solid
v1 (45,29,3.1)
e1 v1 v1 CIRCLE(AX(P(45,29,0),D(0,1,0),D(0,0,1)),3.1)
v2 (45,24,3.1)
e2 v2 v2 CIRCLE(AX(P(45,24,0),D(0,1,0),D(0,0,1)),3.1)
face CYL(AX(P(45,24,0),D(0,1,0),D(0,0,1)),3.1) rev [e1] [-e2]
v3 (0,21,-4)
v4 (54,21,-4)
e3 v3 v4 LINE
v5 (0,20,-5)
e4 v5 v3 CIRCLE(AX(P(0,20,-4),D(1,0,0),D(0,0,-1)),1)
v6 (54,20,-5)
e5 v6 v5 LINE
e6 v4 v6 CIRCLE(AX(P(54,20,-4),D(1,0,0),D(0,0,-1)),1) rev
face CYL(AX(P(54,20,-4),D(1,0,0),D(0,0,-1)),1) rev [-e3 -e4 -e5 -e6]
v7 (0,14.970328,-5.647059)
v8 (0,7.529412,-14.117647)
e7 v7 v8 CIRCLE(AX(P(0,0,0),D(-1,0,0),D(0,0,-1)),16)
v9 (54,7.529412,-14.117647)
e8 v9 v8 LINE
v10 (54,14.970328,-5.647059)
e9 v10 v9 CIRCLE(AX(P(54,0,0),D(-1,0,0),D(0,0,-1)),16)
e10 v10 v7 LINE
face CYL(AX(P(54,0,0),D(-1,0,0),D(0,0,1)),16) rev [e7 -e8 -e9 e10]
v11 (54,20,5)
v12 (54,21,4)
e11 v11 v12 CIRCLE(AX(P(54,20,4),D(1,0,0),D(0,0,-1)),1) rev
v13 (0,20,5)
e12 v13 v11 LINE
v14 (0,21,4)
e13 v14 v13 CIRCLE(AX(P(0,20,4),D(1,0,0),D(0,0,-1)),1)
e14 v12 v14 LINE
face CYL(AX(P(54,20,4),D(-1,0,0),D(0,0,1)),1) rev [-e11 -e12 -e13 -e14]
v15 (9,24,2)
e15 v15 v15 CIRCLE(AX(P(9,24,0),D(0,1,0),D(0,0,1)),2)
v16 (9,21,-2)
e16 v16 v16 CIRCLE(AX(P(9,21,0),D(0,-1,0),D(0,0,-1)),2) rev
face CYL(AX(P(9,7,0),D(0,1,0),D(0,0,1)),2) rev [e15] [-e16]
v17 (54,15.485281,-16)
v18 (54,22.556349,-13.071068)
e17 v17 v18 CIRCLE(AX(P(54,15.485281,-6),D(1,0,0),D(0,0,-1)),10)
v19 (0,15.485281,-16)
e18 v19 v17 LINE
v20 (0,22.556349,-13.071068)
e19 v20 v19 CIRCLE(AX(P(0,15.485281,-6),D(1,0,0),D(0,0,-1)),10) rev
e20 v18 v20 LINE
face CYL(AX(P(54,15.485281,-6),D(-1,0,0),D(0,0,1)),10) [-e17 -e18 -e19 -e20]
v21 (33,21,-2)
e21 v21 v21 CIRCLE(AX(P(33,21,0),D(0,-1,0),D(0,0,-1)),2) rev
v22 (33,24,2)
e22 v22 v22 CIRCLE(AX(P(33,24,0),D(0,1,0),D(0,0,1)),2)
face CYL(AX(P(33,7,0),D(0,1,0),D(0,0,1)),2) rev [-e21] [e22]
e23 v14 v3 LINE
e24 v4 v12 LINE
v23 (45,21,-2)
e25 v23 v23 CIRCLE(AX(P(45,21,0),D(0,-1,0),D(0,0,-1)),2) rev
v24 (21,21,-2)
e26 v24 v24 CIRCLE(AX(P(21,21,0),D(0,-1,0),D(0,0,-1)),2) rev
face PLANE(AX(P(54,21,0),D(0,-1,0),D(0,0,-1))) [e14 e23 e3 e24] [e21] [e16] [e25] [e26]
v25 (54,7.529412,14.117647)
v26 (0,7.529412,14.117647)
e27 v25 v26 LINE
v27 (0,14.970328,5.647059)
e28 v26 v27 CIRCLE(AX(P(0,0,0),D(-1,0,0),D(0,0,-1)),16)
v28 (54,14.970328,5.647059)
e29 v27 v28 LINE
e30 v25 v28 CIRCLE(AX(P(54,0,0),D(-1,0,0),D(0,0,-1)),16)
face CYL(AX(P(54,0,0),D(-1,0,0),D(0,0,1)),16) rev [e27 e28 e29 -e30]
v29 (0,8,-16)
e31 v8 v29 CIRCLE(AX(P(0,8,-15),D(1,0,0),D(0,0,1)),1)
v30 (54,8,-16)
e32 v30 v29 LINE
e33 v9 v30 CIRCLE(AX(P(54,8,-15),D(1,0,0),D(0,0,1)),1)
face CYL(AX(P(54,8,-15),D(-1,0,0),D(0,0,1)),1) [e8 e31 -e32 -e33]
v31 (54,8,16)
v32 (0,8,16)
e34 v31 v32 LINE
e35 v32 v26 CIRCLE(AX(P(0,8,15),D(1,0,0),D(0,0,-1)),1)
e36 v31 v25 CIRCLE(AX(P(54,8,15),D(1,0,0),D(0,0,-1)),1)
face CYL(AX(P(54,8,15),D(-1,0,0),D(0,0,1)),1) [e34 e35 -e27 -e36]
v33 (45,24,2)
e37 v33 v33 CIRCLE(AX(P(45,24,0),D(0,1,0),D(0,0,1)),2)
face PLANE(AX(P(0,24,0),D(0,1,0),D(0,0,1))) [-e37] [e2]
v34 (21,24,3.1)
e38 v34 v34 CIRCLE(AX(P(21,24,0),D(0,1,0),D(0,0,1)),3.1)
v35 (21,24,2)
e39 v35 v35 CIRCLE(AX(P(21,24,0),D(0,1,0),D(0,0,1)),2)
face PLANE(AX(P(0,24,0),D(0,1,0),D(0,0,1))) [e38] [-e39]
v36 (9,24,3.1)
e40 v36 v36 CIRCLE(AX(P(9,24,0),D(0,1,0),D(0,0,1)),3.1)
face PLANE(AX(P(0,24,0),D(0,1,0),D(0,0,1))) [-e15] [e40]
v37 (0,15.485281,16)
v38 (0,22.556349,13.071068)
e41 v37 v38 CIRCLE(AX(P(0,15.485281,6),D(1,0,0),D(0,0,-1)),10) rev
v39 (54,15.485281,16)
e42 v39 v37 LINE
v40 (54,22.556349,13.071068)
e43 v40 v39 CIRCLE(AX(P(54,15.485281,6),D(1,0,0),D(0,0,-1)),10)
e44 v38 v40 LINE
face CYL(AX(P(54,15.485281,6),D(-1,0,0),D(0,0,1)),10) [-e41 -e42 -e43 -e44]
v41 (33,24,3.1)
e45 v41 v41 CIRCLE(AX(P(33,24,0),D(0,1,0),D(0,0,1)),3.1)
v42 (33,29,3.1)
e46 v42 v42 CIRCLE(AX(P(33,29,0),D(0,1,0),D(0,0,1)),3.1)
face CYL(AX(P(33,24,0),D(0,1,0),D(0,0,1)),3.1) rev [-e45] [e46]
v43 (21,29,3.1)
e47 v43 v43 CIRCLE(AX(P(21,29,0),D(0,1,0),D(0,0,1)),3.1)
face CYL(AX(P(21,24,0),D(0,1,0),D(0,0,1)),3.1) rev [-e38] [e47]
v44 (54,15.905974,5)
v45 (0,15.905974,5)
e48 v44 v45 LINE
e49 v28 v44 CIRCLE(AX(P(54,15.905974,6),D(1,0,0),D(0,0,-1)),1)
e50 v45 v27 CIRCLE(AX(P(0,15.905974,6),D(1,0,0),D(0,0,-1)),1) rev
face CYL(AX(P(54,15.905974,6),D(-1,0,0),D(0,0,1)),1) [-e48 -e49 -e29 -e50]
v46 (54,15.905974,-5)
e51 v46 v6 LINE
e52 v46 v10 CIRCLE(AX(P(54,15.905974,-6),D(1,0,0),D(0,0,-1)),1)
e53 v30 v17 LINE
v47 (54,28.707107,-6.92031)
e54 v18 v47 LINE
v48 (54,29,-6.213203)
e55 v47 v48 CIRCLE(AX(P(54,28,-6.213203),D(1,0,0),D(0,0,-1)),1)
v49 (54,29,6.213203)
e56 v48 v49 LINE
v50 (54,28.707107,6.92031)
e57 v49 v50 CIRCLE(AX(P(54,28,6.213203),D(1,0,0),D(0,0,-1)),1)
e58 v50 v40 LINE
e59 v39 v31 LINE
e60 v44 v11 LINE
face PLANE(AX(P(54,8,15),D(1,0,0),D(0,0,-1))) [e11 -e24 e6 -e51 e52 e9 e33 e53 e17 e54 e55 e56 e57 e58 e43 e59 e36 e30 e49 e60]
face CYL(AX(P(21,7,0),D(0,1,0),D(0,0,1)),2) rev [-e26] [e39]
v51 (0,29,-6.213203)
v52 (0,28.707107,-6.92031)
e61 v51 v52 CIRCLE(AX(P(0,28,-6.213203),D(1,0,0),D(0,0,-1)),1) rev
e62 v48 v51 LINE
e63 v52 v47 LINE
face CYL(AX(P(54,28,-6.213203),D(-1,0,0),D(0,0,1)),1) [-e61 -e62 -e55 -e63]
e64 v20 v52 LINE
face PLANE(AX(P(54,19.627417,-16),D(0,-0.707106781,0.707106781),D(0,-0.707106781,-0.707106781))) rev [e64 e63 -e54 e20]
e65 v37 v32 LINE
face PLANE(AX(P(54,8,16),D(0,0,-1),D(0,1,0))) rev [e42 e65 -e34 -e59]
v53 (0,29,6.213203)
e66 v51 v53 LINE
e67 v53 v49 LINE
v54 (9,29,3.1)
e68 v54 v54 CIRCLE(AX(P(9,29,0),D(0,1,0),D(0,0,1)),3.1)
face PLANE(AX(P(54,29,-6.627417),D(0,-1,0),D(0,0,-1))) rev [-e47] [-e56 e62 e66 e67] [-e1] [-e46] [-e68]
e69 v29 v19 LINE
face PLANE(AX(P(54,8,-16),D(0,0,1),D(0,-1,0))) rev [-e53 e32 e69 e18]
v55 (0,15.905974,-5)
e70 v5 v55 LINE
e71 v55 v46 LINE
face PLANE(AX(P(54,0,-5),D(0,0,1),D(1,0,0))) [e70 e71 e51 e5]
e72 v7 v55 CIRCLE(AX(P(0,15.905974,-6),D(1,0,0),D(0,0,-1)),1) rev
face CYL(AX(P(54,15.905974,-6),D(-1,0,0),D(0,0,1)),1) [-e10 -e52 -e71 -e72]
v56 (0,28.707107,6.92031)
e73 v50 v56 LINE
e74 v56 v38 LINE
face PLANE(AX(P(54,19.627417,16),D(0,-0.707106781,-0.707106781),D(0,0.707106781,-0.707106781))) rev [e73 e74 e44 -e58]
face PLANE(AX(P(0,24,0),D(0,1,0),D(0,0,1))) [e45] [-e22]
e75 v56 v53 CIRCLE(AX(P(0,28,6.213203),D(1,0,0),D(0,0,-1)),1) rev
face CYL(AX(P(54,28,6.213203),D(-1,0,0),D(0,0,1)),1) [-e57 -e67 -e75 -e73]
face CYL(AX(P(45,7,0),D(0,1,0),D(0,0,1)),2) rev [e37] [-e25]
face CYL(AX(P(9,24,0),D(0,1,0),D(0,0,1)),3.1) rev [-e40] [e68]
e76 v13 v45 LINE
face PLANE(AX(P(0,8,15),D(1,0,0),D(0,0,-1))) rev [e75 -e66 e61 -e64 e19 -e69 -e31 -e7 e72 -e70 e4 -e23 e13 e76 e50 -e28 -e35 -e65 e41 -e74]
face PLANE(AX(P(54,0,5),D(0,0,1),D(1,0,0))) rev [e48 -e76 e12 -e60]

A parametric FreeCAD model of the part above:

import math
import FreeCAD as App
import Part
import Sketcher


def edges_at(feature, points):
    """Names of the edges that pass closest to the given points."""
    edges = feature.Shape.Edges
    near = lambda p: min(range(len(edges)), key=lambda i: edges[i].distToShape(Part.Vertex(*p))[0])
    return sorted({f"Edge{near(p) + 1}" for p in points})

doc = App.newDocument("Part")
body = doc.addObject("PartDesign::Body", "Body")

sketch1 = body.newObject("Sketcher::SketchObject", "Sketch")
sketch1.AttachmentSupport = (doc.getObject("YZ_Plane"), [""])
sketch1.MapMode = "FlatFace"
sketch1.addGeometry([
    Part.LineSegment(App.Vector(8, -16, 0), App.Vector(19.6, -16, 0)),
    Part.LineSegment(App.Vector(19.6, -16, 0), App.Vector(29, -6.6, 0)),
    Part.LineSegment(App.Vector(29, -6.6, 0), App.Vector(29, 6.6, 0)),
    Part.LineSegment(App.Vector(29, 6.6, 0), App.Vector(19.6, 16, 0)),
    Part.LineSegment(App.Vector(19.6, 16, 0), App.Vector(8, 16, 0)),
    Part.ArcOfCircle(Part.Circle(App.Vector(8, 15, 0), App.Vector(0, 0, 1), 1), math.radians(90), math.radians(242)),
    Part.ArcOfCircle(Part.Circle(App.Vector(0, 0, 0), App.Vector(0, 0, 1), 16), math.radians(-62), math.radians(62)),
    Part.ArcOfCircle(Part.Circle(App.Vector(8, -15, 0), App.Vector(0, 0, 1), 1), math.radians(118), math.radians(270)),
], False)
sketch1.addConstraint([
    Sketcher.Constraint("Coincident", 0, 2, 1, 1),
    Sketcher.Constraint("Coincident", 1, 2, 2, 1),
    Sketcher.Constraint("Coincident", 2, 2, 3, 1),
    Sketcher.Constraint("Coincident", 3, 2, 4, 1),
    Sketcher.Constraint("Tangent", 4, 2, 5, 1),
    Sketcher.Constraint("Tangent", 5, 2, 6, 2),
    Sketcher.Constraint("Tangent", 6, 1, 7, 1),
    Sketcher.Constraint("Tangent", 7, 2, 0, 1),
    Sketcher.Constraint("Horizontal", 0),
    Sketcher.Constraint("Vertical", 2),
    Sketcher.Constraint("Horizontal", 4),
    Sketcher.Constraint("Coincident", 6, 3, -1, 1),
    Sketcher.Constraint("Equal", 5, 7),
    Sketcher.Constraint("Symmetric", 0, 2, 3, 2, -1),
    Sketcher.Constraint("Perpendicular", 1, 3),
    Sketcher.Constraint("Equal", 1, 3),
    Sketcher.Constraint("Radius", 5, 1.0),
    Sketcher.Constraint("Radius", 6, 16.0),
    Sketcher.Constraint("DistanceX", -1, 1, 5, 3, 8.0),
    Sketcher.Constraint("DistanceX", -1, 1, 1, 2, 29.0),
    Sketcher.Constraint("DistanceX", 0, 1, 0, 2, 11.627417),
])
pad1 = body.newObject("PartDesign::Pad", "Pad")
pad1.Profile = sketch1
pad1.Length = 54

sketch2 = body.newObject("Sketcher::SketchObject", "Sketch001")
sketch2.AttachmentSupport = (doc.getObject("XZ_Plane"), [""])
sketch2.MapMode = "FlatFace"
sketch2.AttachmentOffset = App.Placement(App.Vector(0, 0, -29), App.Rotation())
sketch2.addGeometry([
    Part.Circle(App.Vector(9, 0, 0), App.Vector(0, 0, 1), 2),
    Part.Circle(App.Vector(21, 0, 0), App.Vector(0, 0, 1), 2),
    Part.Circle(App.Vector(33, 0, 0), App.Vector(0, 0, 1), 2),
    Part.Circle(App.Vector(45, 0, 0), App.Vector(0, 0, 1), 2),
], False)
sketch2.addConstraint([
    Sketcher.Constraint("Equal", 0, 1),
    Sketcher.Constraint("Equal", 1, 2),
    Sketcher.Constraint("Equal", 2, 3),
    Sketcher.Constraint("PointOnObject", 0, 3, -1),
    Sketcher.Constraint("PointOnObject", 1, 3, -1),
    Sketcher.Constraint("PointOnObject", 2, 3, -1),
    Sketcher.Constraint("PointOnObject", 3, 3, -1),
    Sketcher.Constraint("Diameter", 0, 4.0),
    Sketcher.Constraint("DistanceX", -1, 1, 0, 3, 9.0),
    Sketcher.Constraint("DistanceX", -1, 1, 1, 3, 21.0),
    Sketcher.Constraint("DistanceX", -1, 1, 2, 3, 33.0),
    Sketcher.Constraint("DistanceX", -1, 1, 3, 3, 45.0),
])
pocket1 = body.newObject("PartDesign::Pocket", "Pocket")
pocket1.Profile = sketch2
pocket1.Type = "ThroughAll"
pocket1.Midplane = True

sketch3 = body.newObject("Sketcher::SketchObject", "Sketch002")
sketch3.AttachmentSupport = (doc.getObject("XZ_Plane"), [""])
sketch3.MapMode = "FlatFace"
sketch3.AttachmentOffset = App.Placement(App.Vector(0, 0, -29), App.Rotation())
sketch3.addGeometry([
    Part.Circle(App.Vector(9, 0, 0), App.Vector(0, 0, 1), 3.1),
    Part.Circle(App.Vector(21, 0, 0), App.Vector(0, 0, 1), 3.1),
    Part.Circle(App.Vector(33, 0, 0), App.Vector(0, 0, 1), 3.1),
    Part.Circle(App.Vector(45, 0, 0), App.Vector(0, 0, 1), 3.1),
], False)
sketch3.addConstraint([
    Sketcher.Constraint("Equal", 0, 1),
    Sketcher.Constraint("Equal", 1, 2),
    Sketcher.Constraint("Equal", 2, 3),
    Sketcher.Constraint("PointOnObject", 0, 3, -1),
    Sketcher.Constraint("PointOnObject", 1, 3, -1),
    Sketcher.Constraint("PointOnObject", 2, 3, -1),
    Sketcher.Constraint("PointOnObject", 3, 3, -1),
    Sketcher.Constraint("Diameter", 0, 6.2),
    Sketcher.Constraint("DistanceX", -1, 1, 0, 3, 9.0),
    Sketcher.Constraint("DistanceX", -1, 1, 1, 3, 21.0),
    Sketcher.Constraint("DistanceX", -1, 1, 2, 3, 33.0),
    Sketcher.Constraint("DistanceX", -1, 1, 3, 3, 45.0),
])
pocket2 = body.newObject("PartDesign::Pocket", "Pocket001")
pocket2.Profile = sketch3
pocket2.Length = 5
pocket2.Reversed = True

sketch4 = body.newObject("Sketcher::SketchObject", "Sketch003")
sketch4.AttachmentSupport = (doc.getObject("YZ_Plane"), [""])
sketch4.MapMode = "FlatFace"
sketch4.addGeometry([
    Part.LineSegment(App.Vector(21, -5, 0), App.Vector(15, -5, 0)),
    Part.ArcOfCircle(Part.Circle(App.Vector(0, 0, 0), App.Vector(0, 0, 1), 16), math.radians(-18), math.radians(18)),
    Part.LineSegment(App.Vector(15, 5, 0), App.Vector(21, 5, 0)),
    Part.LineSegment(App.Vector(21, 5, 0), App.Vector(21, -5, 0)),
], False)
sketch4.addConstraint([
    Sketcher.Constraint("Coincident", 0, 2, 1, 1),
    Sketcher.Constraint("Coincident", 1, 2, 2, 1),
    Sketcher.Constraint("Coincident", 2, 2, 3, 1),
    Sketcher.Constraint("Coincident", 3, 2, 0, 1),
    Sketcher.Constraint("Horizontal", 0),
    Sketcher.Constraint("Horizontal", 2),
    Sketcher.Constraint("Vertical", 3),
    Sketcher.Constraint("Coincident", 1, 3, -1, 1),
    Sketcher.Constraint("Vertical", 0, 2, 1, 2),
    Sketcher.Constraint("Radius", 1, 16.0),
    Sketcher.Constraint("DistanceY", 3, 2, 3, 1, 10.0),
    Sketcher.Constraint("DistanceX", -1, 1, 2, 2, 21.0),
])
pocket3 = body.newObject("PartDesign::Pocket", "Pocket002")
pocket3.Profile = sketch4
pocket3.Type = "ThroughAll"
pocket3.Midplane = True
doc.recompute()

fillet = body.newObject("PartDesign::Fillet", "Fillet")
fillet.Base = (pocket3, edges_at(pocket3, [
    (27, 15.199, -5),
    (27, 21, -5),
    (27, 15.199, 5),
    (27, 21, 5),
    (27, 29, -6.627),
    (27, 29, 6.627),
]))
fillet.Radius = 1
doc.recompute()

fillet2 = body.newObject("PartDesign::Fillet", "Fillet001")
fillet2.Base = (fillet, edges_at(fillet, [(27, 19.627, -16), (27, 19.627, 16)]))
fillet2.Radius = 10

doc.recompute()
